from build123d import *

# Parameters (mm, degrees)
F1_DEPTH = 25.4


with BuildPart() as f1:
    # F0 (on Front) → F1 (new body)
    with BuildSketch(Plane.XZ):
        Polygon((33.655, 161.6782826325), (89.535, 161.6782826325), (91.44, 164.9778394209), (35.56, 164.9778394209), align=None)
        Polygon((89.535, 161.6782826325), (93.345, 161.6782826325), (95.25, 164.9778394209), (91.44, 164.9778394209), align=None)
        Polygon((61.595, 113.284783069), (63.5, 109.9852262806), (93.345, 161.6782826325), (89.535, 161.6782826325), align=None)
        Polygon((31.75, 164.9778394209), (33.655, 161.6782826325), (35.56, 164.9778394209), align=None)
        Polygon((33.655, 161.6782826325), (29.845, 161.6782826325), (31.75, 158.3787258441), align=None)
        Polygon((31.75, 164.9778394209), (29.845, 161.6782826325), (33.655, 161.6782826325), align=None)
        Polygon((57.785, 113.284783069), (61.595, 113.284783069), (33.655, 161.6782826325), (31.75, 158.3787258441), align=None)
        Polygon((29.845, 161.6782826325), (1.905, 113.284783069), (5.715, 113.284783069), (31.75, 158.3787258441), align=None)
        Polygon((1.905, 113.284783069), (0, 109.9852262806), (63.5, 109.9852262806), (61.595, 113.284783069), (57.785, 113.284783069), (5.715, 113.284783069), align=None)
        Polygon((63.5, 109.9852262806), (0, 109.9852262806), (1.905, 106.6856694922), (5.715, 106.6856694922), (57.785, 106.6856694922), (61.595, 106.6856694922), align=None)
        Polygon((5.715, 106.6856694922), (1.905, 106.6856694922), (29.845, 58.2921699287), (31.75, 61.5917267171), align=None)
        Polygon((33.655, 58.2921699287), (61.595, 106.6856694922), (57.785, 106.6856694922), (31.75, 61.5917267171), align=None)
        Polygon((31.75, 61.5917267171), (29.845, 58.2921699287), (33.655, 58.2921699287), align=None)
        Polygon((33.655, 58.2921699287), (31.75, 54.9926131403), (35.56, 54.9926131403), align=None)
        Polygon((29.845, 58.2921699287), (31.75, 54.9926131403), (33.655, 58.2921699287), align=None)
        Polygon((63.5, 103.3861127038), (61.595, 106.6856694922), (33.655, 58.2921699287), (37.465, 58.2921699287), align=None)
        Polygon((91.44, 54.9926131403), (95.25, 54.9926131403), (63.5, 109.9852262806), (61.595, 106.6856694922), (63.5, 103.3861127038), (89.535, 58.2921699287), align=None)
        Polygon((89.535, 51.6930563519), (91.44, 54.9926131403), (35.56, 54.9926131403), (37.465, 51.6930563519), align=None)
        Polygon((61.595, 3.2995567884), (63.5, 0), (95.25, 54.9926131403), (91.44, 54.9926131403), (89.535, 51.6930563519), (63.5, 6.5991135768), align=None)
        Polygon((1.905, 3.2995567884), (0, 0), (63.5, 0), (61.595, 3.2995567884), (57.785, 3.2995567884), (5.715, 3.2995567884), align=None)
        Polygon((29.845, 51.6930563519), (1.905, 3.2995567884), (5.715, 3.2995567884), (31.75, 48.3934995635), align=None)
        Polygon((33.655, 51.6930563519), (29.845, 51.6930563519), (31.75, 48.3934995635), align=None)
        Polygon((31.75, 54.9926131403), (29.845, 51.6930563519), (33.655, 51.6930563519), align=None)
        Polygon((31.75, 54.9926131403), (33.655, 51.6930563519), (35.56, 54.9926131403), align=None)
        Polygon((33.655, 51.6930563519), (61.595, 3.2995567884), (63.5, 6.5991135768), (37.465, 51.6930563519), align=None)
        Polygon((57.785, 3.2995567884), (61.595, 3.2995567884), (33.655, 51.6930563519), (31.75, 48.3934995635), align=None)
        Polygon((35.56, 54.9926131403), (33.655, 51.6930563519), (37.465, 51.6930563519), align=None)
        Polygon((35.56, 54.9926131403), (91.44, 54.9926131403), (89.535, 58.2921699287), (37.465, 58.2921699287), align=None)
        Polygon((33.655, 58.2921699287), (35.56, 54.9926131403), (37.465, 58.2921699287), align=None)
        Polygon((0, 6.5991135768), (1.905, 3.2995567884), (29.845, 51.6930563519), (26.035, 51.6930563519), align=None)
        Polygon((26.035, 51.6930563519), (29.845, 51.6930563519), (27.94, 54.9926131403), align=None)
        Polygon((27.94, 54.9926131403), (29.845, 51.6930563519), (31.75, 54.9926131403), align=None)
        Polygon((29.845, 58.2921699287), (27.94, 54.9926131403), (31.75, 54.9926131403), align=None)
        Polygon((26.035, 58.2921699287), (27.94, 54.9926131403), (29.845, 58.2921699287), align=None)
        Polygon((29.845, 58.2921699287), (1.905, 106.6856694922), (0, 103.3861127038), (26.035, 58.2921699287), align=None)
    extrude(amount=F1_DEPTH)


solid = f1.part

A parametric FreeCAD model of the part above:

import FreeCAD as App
import Part
import Sketcher
from FreeCAD import Vector
Q = App.Units.Quantity

doc = App.newDocument("Part")
body = doc.addObject("PartDesign::Body", "Body")

sketch1 = body.newObject("Sketcher::SketchObject", "Sketch")
sketch1.AttachmentSupport = (doc.getObject("XZ_Plane"), [""])
sketch1.MapMode = "FlatFace"
sketch1.addGeometry([
    Part.LineSegment(Vector(26.035, 51.693056, 0), Vector(0, 6.599114, 0)),
    Part.LineSegment(Vector(0, 6.599114, 0), Vector(1.905, 3.299557, 0)),
    Part.LineSegment(Vector(1.905, 3.299557, 0), Vector(0, 0, 0)),
    Part.LineSegment(Vector(0, 0, 0), Vector(63.5, 0, 0)),
    Part.LineSegment(Vector(63.5, 0, 0), Vector(95.25, 54.992613, 0)),
    Part.LineSegment(Vector(95.25, 54.992613, 0), Vector(63.5, 109.985226, 0)),
    Part.LineSegment(Vector(63.5, 109.985226, 0), Vector(93.345, 161.678283, 0)),
    Part.LineSegment(Vector(93.345, 161.678283, 0), Vector(95.25, 164.977839, 0)),
    Part.LineSegment(Vector(95.25, 164.977839, 0), Vector(31.75, 164.977839, 0)),
    Part.LineSegment(Vector(31.75, 164.977839, 0), Vector(29.845, 161.678283, 0)),
    Part.LineSegment(Vector(29.845, 161.678283, 0), Vector(1.905, 113.284783, 0)),
    Part.LineSegment(Vector(1.905, 113.284783, 0), Vector(0, 109.985226, 0)),
    Part.LineSegment(Vector(0, 109.985226, 0), Vector(1.905, 106.685669, 0)),
    Part.LineSegment(Vector(1.905, 106.685669, 0), Vector(0, 103.386113, 0)),
    Part.LineSegment(Vector(0, 103.386113, 0), Vector(26.035, 58.29217, 0)),
    Part.LineSegment(Vector(26.035, 58.29217, 0), Vector(27.94, 54.992613, 0)),
    Part.LineSegment(Vector(27.94, 54.992613, 0), Vector(26.035, 51.693056, 0)),
    Part.LineSegment(Vector(5.715, 3.299557, 0), Vector(31.75, 48.3935, 0)),
    Part.LineSegment(Vector(31.75, 48.3935, 0), Vector(57.785, 3.299557, 0)),
    Part.LineSegment(Vector(57.785, 3.299557, 0), Vector(5.715, 3.299557, 0)),
    Part.LineSegment(Vector(63.5, 6.599114, 0), Vector(37.465, 51.693056, 0)),
    Part.LineSegment(Vector(37.465, 51.693056, 0), Vector(89.535, 51.693056, 0)),
    Part.LineSegment(Vector(89.535, 51.693056, 0), Vector(63.5, 6.599114, 0)),
    Part.LineSegment(Vector(89.535, 58.29217, 0), Vector(37.465, 58.29217, 0)),
    Part.LineSegment(Vector(37.465, 58.29217, 0), Vector(63.5, 103.386113, 0)),
    Part.LineSegment(Vector(63.5, 103.386113, 0), Vector(89.535, 58.29217, 0)),
    Part.LineSegment(Vector(57.785, 106.685669, 0), Vector(31.75, 61.591727, 0)),
    Part.LineSegment(Vector(31.75, 61.591727, 0), Vector(5.715, 106.685669, 0)),
    Part.LineSegment(Vector(5.715, 106.685669, 0), Vector(57.785, 106.685669, 0)),
    Part.LineSegment(Vector(31.75, 158.378726, 0), Vector(57.785, 113.284783, 0)),
    Part.LineSegment(Vector(57.785, 113.284783, 0), Vector(5.715, 113.284783, 0)),
    Part.LineSegment(Vector(5.715, 113.284783, 0), Vector(31.75, 158.378726, 0)),
    Part.LineSegment(Vector(89.535, 161.678283, 0), Vector(61.595, 113.284783, 0)),
    Part.LineSegment(Vector(61.595, 113.284783, 0), Vector(33.655, 161.678283, 0)),
    Part.LineSegment(Vector(33.655, 161.678283, 0), Vector(89.535, 161.678283, 0)),
], False)
sketch1.addConstraint([
    Sketcher.Constraint("Coincident", 0, 2, 1, 1),
    Sketcher.Constraint("Coincident", 1, 2, 2, 1),
    Sketcher.Constraint("Coincident", 2, 2, 3, 1),
    Sketcher.Constraint("Coincident", 3, 2, 4, 1),
    Sketcher.Constraint("Coincident", 4, 2, 5, 1),
    Sketcher.Constraint("Coincident", 5, 2, 6, 1),
    Sketcher.Constraint("Coincident", 6, 2, 7, 1),
    Sketcher.Constraint("Coincident", 7, 2, 8, 1),
    Sketcher.Constraint("Coincident", 8, 2, 9, 1),
    Sketcher.Constraint("Coincident", 9, 2, 10, 1),
    Sketcher.Constraint("Coincident", 10, 2, 11, 1),
    Sketcher.Constraint("Coincident", 11, 2, 12, 1),
    Sketcher.Constraint("Coincident", 12, 2, 13, 1),
    Sketcher.Constraint("Coincident", 13, 2, 14, 1),
    Sketcher.Constraint("Coincident", 14, 2, 15, 1),
    Sketcher.Constraint("Coincident", 15, 2, 16, 1),
    Sketcher.Constraint("Coincident", 16, 2, 0, 1),
    Sketcher.Constraint("Coincident", 17, 2, 18, 1),
    Sketcher.Constraint("Coincident", 18, 2, 19, 1),
    Sketcher.Constraint("Coincident", 19, 2, 17, 1),
    Sketcher.Constraint("Coincident", 20, 2, 21, 1),
    Sketcher.Constraint("Coincident", 21, 2, 22, 1),
    Sketcher.Constraint("Coincident", 22, 2, 20, 1),
    Sketcher.Constraint("Coincident", 23, 2, 24, 1),
    Sketcher.Constraint("Coincident", 24, 2, 25, 1),
    Sketcher.Constraint("Coincident", 25, 2, 23, 1),
    Sketcher.Constraint("Coincident", 26, 2, 27, 1),
    Sketcher.Constraint("Coincident", 27, 2, 28, 1),
    Sketcher.Constraint("Coincident", 28, 2, 26, 1),
    Sketcher.Constraint("Coincident", 29, 2, 30, 1),
    Sketcher.Constraint("Coincident", 30, 2, 31, 1),
    Sketcher.Constraint("Coincident", 31, 2, 29, 1),
    Sketcher.Constraint("Coincident", 32, 2, 33, 1),
    Sketcher.Constraint("Coincident", 33, 2, 34, 1),
    Sketcher.Constraint("Coincident", 34, 2, 32, 1),
    Sketcher.Constraint("Horizontal", 3),
    Sketcher.Constraint("Horizontal", 8),
    Sketcher.Constraint("Horizontal", 19),
    Sketcher.Constraint("Horizontal", 21),
    Sketcher.Constraint("Horizontal", 23),
    Sketcher.Constraint("Horizontal", 28),
    Sketcher.Constraint("Horizontal", 30),
    Sketcher.Constraint("Horizontal", 34),
    Sketcher.Constraint("Coincident", 2, 2, -1, 1),
    Sketcher.Constraint("PointOnObject", 0, 2, -2),
    Sketcher.Constraint("PointOnObject", 11, 2, -2),
    Sketcher.Constraint("PointOnObject", 13, 2, -2),
    Sketcher.Constraint("Parallel", 0, 2),
    Sketcher.Constraint("Parallel", 2, 4),
    Sketcher.Constraint("Parallel", 1, 5),
    Sketcher.Constraint("Parallel", 4, 6),
    Sketcher.Constraint("Parallel", 6, 7),
    Sketcher.Constraint("Parallel", 7, 9),
    Sketcher.Constraint("Parallel", 9, 10),
    Sketcher.Constraint("Parallel", 10, 11),
    Sketcher.Constraint("Parallel", 5, 12),
    Sketcher.Constraint("Parallel", 11, 13),
    Sketcher.Constraint("Parallel", 12, 14),
    Sketcher.Constraint("Parallel", 14, 15),
    Sketcher.Constraint("Parallel", 13, 16),
    Sketcher.Constraint("Parallel", 16, 17),
    Sketcher.Constraint("Parallel", 15, 18),
    Sketcher.Constraint("Parallel", 18, 20),
    Sketcher.Constraint("Parallel", 17, 22),
    Sketcher.Constraint("Parallel", 22, 24),
    Sketcher.Constraint("Parallel", 20, 25),
    Sketcher.Constraint("Parallel", 24, 26),
    Sketcher.Constraint("Parallel", 25, 27),
    Sketcher.Constraint("Parallel", 27, 29),
    Sketcher.Constraint("Parallel", 26, 31),
    Sketcher.Constraint("Parallel", 31, 32),
    Sketcher.Constraint("Parallel", 29, 33),
    Sketcher.Constraint("Horizontal", 6, 2, 9, 2),
    Sketcher.Constraint("Horizontal", 5, 2, 11, 2),
    Sketcher.Constraint("Horizontal", 4, 2, 15, 2),
    Sketcher.Constraint("Horizontal", 1, 2, 18, 2),
    Sketcher.Constraint("Horizontal", 16, 2, 20, 2),
    Sketcher.Constraint("Horizontal", 0, 2, 22, 2),
    Sketcher.Constraint("Horizontal", 14, 2, 23, 2),
    Sketcher.Constraint("Horizontal", 13, 2, 24, 2),
    Sketcher.Constraint("Horizontal", 12, 2, 27, 2),
    Sketcher.Constraint("Horizontal", 10, 2, 29, 2),
    Sketcher.Constraint("Horizontal", 30, 2, 32, 2),
    Sketcher.Constraint("Horizontal", 9, 2, 33, 2),
    Sketcher.Constraint("Vertical", 3, 2, 5, 2),
    Sketcher.Constraint("Vertical", 4, 2, 7, 2),
    Sketcher.Constraint("Vertical", 1, 2, 10, 2),
    Sketcher.Constraint("Vertical", 10, 2, 12, 2),
    Sketcher.Constraint("Vertical", 14, 2, 16, 2),
    Sketcher.Constraint("Vertical", 8, 2, 17, 2),
    Sketcher.Constraint("Vertical", 5, 2, 22, 2),
    Sketcher.Constraint("Vertical", 20, 2, 23, 2),
    Sketcher.Constraint("Vertical", 17, 2, 26, 2),
    Sketcher.Constraint("Vertical", 19, 2, 27, 2),
    Sketcher.Constraint("Vertical", 28, 2, 29, 2),
    Sketcher.Constraint("Vertical", 27, 2, 30, 2),
    Sketcher.Constraint("Vertical", 25, 2, 34, 2),
    Sketcher.Constraint("Equal", 19, 21),
    Sketcher.Constraint("Equal", 2, 7),
    Sketcher.Constraint("Equal", 13, 15),
    Sketcher.Constraint("DistanceX", 3, 1, 3, 2, Q("2.5 in")),
    Sketcher.Constraint("DistanceX", 34, 1, 34, 2, Q("2.2 in")),
    Sketcher.Constraint("Angle", 0, Q("-120 deg")),
    Sketcher.Constraint("Distance", 4, Q("2.5 in")),
])
pad1 = body.newObject("PartDesign::Pad", "Pad")
pad1.Profile = sketch1
pad1.Length = Q("1 in")

doc.recompute()
